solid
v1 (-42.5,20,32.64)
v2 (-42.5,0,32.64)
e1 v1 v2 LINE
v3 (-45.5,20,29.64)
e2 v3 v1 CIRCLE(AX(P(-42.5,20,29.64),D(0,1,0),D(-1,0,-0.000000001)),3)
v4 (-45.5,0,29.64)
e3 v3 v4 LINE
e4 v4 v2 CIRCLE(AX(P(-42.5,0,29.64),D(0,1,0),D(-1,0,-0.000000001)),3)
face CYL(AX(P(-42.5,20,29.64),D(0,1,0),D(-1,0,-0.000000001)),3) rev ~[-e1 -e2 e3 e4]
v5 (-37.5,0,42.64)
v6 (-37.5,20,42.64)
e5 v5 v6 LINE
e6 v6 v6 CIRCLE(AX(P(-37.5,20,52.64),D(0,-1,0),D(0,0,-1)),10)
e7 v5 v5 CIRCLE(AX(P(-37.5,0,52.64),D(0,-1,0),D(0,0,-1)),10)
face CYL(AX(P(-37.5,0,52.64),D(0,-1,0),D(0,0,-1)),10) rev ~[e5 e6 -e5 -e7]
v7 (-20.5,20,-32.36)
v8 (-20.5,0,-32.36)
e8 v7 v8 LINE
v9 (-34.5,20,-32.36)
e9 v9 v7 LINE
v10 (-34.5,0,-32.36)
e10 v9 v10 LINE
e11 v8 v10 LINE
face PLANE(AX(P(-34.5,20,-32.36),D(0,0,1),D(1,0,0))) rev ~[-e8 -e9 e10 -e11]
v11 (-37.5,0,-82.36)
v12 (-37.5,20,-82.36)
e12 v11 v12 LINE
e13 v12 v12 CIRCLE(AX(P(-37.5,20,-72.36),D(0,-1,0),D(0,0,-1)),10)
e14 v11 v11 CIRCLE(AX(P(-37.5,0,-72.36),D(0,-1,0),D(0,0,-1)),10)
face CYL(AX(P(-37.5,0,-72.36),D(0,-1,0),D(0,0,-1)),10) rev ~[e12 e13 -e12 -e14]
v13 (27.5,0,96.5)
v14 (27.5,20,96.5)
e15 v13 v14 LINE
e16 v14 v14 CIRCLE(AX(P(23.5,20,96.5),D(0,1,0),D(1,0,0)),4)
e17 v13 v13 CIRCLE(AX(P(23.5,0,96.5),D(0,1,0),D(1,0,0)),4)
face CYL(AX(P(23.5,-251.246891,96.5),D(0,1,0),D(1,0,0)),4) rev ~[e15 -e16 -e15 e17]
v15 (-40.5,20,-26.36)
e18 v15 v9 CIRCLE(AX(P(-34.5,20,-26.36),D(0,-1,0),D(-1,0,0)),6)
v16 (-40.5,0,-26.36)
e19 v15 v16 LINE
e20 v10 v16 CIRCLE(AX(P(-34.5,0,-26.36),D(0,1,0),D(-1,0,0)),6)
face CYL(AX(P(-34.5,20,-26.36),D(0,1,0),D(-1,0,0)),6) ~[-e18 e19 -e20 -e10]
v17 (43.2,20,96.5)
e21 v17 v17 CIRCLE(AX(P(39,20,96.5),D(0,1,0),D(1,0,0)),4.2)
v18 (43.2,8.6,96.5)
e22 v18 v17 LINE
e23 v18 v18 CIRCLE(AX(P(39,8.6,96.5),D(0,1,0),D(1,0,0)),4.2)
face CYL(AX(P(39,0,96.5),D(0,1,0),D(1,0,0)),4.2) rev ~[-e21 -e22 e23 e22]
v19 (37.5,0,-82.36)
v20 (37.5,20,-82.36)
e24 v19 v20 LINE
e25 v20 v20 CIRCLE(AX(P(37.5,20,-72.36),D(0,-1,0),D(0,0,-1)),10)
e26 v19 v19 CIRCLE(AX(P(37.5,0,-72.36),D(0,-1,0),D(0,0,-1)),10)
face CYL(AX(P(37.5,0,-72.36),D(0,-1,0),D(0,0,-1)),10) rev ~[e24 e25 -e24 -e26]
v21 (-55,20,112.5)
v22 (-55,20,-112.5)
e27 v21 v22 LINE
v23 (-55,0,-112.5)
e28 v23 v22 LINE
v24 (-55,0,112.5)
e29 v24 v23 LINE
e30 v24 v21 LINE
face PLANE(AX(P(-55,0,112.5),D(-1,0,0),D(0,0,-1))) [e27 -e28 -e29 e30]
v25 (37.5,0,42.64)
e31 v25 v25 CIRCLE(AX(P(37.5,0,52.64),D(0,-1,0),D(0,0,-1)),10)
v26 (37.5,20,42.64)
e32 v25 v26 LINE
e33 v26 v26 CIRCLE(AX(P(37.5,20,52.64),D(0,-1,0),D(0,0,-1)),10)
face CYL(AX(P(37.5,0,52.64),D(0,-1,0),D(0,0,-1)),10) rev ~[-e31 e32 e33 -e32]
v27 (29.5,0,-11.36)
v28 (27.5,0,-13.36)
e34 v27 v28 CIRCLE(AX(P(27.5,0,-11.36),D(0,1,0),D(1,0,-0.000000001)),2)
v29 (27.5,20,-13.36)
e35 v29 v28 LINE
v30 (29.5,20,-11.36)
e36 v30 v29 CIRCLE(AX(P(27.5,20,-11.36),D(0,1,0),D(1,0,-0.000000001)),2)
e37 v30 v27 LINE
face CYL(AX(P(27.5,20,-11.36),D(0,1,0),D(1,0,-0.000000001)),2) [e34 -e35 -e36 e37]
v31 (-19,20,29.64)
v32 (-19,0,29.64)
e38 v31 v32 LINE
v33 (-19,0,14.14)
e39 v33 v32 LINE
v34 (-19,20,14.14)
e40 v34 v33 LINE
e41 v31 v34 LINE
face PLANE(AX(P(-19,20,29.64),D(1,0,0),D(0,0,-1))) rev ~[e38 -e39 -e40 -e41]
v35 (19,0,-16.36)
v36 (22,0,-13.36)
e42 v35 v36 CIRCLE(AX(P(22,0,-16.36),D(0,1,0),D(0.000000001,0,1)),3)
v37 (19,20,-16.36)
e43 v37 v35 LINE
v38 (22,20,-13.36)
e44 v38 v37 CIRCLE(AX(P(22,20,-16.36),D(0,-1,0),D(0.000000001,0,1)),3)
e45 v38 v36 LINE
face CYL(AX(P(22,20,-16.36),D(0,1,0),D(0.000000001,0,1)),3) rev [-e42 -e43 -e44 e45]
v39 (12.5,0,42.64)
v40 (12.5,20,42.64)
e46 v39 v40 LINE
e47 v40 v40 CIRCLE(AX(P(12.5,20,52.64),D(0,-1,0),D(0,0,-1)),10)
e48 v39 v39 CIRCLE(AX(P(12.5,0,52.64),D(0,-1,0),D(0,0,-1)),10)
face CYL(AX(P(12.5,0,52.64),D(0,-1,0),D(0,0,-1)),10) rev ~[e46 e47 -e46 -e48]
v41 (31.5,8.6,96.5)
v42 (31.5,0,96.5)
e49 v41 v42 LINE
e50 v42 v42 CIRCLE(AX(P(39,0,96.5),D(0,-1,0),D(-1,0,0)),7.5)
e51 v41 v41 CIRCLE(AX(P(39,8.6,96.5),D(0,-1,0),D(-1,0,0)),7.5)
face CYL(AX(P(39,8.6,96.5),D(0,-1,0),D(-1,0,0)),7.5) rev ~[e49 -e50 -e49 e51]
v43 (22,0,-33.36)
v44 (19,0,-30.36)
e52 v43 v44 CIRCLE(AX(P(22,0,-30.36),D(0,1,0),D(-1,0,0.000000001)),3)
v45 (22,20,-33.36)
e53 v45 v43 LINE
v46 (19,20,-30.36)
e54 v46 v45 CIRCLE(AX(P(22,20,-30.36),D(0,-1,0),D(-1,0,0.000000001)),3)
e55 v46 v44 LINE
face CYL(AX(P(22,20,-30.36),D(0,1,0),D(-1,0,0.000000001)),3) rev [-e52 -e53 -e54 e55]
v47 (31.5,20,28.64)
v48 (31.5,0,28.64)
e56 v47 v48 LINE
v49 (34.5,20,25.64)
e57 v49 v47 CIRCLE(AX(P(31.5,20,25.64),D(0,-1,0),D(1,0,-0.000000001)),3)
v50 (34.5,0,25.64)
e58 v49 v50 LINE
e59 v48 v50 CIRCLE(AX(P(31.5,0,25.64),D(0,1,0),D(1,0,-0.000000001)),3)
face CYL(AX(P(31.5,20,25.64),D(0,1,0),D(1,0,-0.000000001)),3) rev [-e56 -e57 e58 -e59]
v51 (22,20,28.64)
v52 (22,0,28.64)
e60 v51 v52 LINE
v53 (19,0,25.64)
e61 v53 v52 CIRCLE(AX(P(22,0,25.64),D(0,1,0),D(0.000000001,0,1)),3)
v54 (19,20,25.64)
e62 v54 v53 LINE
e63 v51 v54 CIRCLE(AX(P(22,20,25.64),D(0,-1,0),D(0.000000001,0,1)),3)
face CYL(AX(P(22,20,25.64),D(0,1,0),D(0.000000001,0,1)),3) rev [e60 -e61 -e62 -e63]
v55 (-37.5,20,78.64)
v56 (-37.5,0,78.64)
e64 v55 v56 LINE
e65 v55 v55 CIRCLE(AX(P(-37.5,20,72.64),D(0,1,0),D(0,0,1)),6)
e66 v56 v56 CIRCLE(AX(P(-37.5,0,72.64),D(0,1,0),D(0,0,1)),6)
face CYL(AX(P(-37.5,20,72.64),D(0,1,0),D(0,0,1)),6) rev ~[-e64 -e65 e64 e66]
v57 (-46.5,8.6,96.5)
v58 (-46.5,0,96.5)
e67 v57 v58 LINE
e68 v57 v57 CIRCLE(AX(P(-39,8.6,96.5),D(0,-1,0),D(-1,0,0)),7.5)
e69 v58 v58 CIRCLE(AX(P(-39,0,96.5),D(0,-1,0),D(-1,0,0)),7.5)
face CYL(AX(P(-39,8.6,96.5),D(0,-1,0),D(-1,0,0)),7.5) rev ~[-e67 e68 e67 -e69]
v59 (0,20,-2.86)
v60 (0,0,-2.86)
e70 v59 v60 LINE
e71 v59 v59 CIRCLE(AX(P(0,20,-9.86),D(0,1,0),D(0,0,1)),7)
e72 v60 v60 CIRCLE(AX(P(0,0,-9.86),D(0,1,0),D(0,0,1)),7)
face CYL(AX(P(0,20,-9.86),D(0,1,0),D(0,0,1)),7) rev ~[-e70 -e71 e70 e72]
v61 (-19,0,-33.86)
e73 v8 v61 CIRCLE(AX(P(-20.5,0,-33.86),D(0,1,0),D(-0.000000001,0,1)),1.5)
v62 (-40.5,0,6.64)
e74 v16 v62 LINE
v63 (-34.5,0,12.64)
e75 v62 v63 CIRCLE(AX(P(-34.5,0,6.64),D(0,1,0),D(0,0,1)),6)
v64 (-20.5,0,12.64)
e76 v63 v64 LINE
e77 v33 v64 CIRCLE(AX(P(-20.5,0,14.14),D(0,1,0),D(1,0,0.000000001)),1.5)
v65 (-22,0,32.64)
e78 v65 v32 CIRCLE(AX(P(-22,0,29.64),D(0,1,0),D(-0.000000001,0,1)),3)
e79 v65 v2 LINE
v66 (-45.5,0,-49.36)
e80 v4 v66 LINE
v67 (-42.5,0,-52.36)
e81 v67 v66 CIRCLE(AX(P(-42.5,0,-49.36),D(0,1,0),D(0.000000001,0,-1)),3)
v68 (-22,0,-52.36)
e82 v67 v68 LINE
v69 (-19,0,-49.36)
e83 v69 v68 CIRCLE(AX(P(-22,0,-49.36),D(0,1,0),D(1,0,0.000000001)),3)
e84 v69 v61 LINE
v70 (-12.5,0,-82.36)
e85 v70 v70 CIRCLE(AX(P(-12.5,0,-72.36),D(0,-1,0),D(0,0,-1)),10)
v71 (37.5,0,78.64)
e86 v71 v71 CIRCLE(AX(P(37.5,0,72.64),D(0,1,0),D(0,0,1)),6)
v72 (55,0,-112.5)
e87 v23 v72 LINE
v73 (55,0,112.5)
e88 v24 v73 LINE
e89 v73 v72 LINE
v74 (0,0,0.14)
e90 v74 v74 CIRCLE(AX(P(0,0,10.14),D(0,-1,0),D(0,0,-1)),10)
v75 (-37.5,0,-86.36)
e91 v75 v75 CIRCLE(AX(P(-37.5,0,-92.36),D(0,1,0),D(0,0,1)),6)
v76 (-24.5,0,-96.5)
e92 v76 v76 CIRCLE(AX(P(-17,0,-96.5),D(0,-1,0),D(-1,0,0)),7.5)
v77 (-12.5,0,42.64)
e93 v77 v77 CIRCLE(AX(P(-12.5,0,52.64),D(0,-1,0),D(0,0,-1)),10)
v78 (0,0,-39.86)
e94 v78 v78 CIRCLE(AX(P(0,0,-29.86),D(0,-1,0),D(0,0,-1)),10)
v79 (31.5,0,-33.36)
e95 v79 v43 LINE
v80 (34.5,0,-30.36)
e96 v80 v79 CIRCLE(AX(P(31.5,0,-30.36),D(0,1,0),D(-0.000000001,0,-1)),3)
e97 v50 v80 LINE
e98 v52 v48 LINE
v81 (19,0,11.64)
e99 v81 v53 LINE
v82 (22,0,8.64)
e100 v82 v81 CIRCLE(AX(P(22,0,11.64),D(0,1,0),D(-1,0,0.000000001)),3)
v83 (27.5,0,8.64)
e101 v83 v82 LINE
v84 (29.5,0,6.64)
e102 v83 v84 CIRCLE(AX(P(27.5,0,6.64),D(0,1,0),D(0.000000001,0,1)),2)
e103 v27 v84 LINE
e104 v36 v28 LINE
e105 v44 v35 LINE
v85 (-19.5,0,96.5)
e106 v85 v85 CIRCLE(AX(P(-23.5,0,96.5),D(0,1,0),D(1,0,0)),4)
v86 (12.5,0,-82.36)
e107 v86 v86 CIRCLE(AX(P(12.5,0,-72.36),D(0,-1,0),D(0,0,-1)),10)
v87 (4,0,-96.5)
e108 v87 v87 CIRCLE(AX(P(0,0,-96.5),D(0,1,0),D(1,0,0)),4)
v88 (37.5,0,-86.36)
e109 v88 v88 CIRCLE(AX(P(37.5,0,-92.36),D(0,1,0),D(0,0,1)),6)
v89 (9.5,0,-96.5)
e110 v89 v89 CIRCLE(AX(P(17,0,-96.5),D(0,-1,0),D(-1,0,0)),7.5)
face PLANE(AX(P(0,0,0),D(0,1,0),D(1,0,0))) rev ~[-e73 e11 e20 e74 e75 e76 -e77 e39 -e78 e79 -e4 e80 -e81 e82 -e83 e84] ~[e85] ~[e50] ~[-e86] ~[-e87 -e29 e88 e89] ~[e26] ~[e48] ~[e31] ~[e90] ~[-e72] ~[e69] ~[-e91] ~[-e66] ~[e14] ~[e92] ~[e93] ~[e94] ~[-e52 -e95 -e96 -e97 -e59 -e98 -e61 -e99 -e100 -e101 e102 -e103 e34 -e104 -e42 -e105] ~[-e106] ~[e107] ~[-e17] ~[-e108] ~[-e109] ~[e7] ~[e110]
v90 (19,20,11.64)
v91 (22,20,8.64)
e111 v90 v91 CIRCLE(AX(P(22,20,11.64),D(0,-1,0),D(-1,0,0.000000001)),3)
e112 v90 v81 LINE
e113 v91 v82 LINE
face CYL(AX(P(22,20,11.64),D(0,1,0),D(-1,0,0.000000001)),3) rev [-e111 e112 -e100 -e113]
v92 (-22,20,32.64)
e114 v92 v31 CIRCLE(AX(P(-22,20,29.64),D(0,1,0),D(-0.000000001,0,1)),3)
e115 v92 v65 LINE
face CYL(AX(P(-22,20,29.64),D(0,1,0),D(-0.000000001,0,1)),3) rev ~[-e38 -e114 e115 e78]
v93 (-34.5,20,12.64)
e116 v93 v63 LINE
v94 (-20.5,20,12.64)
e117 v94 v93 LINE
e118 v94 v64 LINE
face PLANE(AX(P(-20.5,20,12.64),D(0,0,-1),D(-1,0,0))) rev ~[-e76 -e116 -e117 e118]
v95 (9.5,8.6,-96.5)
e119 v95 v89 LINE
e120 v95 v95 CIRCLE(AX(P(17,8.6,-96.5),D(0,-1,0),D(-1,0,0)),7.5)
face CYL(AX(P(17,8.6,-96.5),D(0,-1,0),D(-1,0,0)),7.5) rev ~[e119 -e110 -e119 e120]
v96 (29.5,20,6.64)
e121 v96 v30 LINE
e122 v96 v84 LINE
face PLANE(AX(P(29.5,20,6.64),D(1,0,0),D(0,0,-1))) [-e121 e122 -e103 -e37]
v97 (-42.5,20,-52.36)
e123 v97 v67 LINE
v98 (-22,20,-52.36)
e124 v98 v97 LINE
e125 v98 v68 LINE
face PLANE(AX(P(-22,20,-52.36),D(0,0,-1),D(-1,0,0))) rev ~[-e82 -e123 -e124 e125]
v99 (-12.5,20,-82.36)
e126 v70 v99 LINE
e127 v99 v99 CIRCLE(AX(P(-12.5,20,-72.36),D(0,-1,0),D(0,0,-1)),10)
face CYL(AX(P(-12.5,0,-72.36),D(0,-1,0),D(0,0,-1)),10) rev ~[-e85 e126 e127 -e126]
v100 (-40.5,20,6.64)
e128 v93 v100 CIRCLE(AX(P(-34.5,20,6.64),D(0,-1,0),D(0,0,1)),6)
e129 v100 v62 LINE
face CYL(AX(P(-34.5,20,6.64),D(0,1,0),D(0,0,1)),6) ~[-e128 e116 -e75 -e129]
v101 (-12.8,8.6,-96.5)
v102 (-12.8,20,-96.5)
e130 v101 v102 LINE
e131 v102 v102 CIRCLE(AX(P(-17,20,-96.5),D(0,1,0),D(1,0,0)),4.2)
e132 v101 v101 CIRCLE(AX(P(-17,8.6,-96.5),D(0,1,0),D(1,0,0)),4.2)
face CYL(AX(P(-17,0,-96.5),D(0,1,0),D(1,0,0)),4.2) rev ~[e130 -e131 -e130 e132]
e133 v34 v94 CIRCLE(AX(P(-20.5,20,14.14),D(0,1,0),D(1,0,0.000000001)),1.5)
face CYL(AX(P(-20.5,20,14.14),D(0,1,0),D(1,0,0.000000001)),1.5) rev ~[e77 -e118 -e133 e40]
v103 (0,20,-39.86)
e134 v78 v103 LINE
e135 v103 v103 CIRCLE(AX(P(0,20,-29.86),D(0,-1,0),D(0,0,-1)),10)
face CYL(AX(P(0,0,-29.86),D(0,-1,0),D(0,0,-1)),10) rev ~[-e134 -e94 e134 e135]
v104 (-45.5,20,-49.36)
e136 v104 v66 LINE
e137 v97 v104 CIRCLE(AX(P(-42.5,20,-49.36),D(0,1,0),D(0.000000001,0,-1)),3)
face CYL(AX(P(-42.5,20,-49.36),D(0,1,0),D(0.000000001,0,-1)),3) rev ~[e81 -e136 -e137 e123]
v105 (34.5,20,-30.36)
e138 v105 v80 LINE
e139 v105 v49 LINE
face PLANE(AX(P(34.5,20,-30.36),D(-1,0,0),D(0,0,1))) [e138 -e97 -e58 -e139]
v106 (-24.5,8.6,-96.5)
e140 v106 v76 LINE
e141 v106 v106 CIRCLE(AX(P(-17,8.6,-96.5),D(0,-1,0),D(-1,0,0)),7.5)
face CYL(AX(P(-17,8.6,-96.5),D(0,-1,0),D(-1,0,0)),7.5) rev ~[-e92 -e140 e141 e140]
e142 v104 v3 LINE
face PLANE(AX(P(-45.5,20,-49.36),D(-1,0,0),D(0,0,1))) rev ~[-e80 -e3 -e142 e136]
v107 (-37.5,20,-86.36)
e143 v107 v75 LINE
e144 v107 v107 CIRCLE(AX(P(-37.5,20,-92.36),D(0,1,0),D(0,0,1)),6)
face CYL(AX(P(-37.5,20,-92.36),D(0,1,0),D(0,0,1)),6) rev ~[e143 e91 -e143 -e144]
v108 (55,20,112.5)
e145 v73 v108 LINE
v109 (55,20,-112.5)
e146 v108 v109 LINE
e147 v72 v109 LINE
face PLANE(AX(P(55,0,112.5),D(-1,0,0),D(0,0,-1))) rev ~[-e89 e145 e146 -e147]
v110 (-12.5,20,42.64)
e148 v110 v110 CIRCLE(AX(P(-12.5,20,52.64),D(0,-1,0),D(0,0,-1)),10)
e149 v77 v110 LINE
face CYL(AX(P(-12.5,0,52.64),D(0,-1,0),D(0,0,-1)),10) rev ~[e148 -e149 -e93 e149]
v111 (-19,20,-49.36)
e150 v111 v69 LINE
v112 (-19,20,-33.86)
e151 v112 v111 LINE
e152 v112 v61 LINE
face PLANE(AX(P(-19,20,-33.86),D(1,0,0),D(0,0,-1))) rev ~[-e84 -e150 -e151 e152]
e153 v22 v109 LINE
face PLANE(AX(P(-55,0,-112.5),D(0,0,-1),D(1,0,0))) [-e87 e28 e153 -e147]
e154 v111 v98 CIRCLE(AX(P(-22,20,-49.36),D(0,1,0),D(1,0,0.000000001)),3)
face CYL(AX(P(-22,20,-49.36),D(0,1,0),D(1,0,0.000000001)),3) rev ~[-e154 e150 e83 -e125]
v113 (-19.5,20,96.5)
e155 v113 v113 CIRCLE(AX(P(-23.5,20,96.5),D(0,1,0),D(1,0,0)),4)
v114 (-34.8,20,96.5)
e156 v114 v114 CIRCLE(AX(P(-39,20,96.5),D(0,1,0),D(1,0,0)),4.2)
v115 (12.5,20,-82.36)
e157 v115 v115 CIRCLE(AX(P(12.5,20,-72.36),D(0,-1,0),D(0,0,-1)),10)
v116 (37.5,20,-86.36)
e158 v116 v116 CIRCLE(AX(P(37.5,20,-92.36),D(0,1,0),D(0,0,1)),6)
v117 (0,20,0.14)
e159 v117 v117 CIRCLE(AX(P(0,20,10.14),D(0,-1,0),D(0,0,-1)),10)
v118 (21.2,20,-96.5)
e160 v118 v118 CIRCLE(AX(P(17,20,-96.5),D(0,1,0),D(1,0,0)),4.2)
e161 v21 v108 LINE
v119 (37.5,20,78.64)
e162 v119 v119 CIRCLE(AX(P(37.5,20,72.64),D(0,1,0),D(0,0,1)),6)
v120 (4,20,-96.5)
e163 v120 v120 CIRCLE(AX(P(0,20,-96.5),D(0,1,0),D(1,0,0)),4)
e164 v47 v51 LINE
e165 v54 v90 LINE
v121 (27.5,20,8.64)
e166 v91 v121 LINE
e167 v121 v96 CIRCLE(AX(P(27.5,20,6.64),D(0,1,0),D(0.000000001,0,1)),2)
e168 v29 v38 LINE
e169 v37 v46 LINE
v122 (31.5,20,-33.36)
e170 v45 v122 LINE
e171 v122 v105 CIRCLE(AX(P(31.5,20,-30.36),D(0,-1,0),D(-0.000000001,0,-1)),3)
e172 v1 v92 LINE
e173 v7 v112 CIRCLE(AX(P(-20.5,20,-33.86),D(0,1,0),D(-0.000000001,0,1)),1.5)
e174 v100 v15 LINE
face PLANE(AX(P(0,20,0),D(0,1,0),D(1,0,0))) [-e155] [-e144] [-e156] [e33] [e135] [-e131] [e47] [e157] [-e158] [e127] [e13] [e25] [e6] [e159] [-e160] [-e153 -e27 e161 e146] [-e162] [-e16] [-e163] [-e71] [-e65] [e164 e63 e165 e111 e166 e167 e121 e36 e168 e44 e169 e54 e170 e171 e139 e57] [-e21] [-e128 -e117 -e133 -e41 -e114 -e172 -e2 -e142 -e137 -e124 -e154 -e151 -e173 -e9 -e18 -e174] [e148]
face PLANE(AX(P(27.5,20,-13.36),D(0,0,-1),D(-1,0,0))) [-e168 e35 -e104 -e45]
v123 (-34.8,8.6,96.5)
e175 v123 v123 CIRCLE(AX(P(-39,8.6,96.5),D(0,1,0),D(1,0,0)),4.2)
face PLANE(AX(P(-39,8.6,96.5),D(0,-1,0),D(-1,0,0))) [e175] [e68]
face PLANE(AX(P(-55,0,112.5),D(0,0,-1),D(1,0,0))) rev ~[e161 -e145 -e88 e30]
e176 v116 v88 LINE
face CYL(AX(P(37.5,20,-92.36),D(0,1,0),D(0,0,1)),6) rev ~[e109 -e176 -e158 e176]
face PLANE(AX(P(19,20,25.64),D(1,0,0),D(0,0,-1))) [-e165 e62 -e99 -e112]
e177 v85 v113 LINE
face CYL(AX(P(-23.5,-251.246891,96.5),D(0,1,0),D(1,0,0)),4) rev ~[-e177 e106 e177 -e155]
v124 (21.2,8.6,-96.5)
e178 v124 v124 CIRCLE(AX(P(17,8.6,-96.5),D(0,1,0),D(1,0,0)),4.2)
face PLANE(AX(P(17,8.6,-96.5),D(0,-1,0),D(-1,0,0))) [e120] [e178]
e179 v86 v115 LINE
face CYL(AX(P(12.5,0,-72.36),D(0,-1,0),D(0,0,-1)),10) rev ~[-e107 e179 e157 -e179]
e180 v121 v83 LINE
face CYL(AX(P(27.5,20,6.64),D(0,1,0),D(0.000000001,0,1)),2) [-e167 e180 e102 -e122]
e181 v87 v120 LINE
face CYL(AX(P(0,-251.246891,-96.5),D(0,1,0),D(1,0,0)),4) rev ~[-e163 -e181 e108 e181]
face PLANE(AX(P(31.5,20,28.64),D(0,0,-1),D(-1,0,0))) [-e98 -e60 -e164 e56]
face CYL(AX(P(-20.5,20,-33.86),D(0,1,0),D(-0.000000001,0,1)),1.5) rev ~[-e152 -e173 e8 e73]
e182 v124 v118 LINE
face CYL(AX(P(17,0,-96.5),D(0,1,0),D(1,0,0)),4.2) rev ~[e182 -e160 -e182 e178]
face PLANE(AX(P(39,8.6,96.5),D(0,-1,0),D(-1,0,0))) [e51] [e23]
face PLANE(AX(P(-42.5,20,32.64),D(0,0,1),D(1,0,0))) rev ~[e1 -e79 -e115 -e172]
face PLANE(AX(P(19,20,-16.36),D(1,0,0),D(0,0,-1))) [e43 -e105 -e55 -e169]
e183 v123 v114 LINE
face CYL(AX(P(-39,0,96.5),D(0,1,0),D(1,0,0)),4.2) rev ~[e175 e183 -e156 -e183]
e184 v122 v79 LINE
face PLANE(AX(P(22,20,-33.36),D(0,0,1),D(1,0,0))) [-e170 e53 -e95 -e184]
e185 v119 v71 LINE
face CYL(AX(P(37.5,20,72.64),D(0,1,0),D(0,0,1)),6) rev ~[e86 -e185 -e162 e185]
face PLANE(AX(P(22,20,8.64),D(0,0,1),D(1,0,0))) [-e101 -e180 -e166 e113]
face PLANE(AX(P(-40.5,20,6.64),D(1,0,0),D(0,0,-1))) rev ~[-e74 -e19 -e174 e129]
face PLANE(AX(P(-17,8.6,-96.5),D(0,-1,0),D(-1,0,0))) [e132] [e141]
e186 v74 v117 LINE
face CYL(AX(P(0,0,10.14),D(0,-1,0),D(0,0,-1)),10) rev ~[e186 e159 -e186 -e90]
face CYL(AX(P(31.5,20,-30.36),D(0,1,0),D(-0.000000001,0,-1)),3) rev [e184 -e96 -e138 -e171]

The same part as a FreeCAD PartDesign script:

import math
import FreeCAD as App
import Part
import Sketcher
from FreeCAD import Vector
Q = App.Units.Quantity

doc = App.newDocument("Part")
params = doc.addObject("Spreadsheet::Sheet", "Params")
for row, (alias, value) in enumerate([
    ("sketch1_width", "110 mm"),
    ("sketch1_height", "225 mm"),
    ("pad1_length", "20 mm"),
    ("sketch2_radius", "3 mm"),
    ("sketch2_radius2", "6 mm"),
    ("sketch2_radius3", "1.5 mm"),
    ("sketch2_width", "14 mm"),
    ("sketch2_height", "33 mm"),
    ("sketch3_radius", "3 mm"),
    ("sketch3_radius2", "2 mm"),
    ("sketch3_height", "14 mm"),
    ("sketch3_height2", "56 mm"),
    ("sketch3_width", "5.5 mm"),
    ("sketch4_diameter", "20 mm"),
    ("sketch5_diameter", "12 mm"),
    ("sketch6_diameter", "12 mm"),
    ("sketch7_diameter", "12 mm"),
    ("sketch8_diameter", "12 mm"),
    ("sketch9_diameter", "14 mm"),
    ("sketch10_diameter", "8.4 mm"),
    ("hole_diameter", "8.4 mm"),
    ("hole_cbore_diameter", "15 mm"),
    ("hole_cbore_depth", "8.6 mm"),
    ("sketch11_diameter", "8 mm"),
    ("hole2_diameter", "8 mm"),
], start=1):
    params.set(f"A{row}", alias)
    params.set(f"B{row}", "=" + value)
    params.setAlias(f"B{row}", alias)

body = doc.addObject("PartDesign::Body", "Body")

# Sketch on XZ plane
sketch1 = body.newObject("Sketcher::SketchObject", "Sketch")
sketch1.AttachmentSupport = (doc.getObject("XZ_Plane"), [""])
sketch1.MapMode = "FlatFace"
sketch1.addGeometry([
    Part.LineSegment(Vector(-55, -112, 0), Vector(-55, 112, 0)),
    Part.LineSegment(Vector(-55, 112, 0), Vector(55, 112, 0)),
    Part.LineSegment(Vector(55, 112, 0), Vector(55, -112, 0)),
    Part.LineSegment(Vector(55, -112, 0), Vector(-55, -112, 0)),
], False)
sketch1.addConstraint([
    Sketcher.Constraint("Coincident", 0, 2, 1, 1),
    Sketcher.Constraint("Coincident", 1, 2, 2, 1),
    Sketcher.Constraint("Coincident", 2, 2, 3, 1),
    Sketcher.Constraint("Coincident", 3, 2, 0, 1),
    Sketcher.Constraint("Vertical", 0),
    Sketcher.Constraint("Horizontal", 1),
    Sketcher.Constraint("Vertical", 2),
    Sketcher.Constraint("Horizontal", 3),
    Sketcher.Constraint("Symmetric", 0, 2, 2, 2, -1, 1),
    Sketcher.Constraint("DistanceX", 1, 1, 1, 2, Q("110 mm")),
    Sketcher.Constraint("DistanceY", 0, 1, 0, 2, Q("225 mm")),
])
sketch1.setExpression("Constraints[9]", "Params.sketch1_width")
sketch1.setExpression("Constraints[10]", "Params.sketch1_height")
pad1 = body.newObject("PartDesign::Pad", "Pad")
pad1.Profile = sketch1
pad1.setExpression("Length", "Params.pad1_length")
pad1.Reversed = True

# Sketch on XZ plane
sketch2 = body.newObject("Sketcher::SketchObject", "Sketch001")
sketch2.AttachmentSupport = (doc.getObject("XZ_Plane"), [""])
sketch2.MapMode = "FlatFace"
sketch2.AttachmentOffset = App.Placement(Vector(0, 0, -20), App.Rotation())
sketch2.addGeometry([
    Part.LineSegment(Vector(-42.5, 32.6, 0), Vector(-22, 32.6, 0)),  # 0
    Part.ArcOfCircle(Part.Circle(Vector(-22, 29.6, 0), Vector(0, 0, 1), 3), math.radians(0), math.radians(90)),  # 1
    Part.LineSegment(Vector(-19, 29.6, 0), Vector(-19, 14.1, 0)),  # 2
    Part.ArcOfCircle(Part.Circle(Vector(-20.5, 14.1, 0), Vector(0, 0, 1), 1.5), math.radians(-90), math.radians(0)),  # 3
    Part.LineSegment(Vector(-20.5, 12.6, 0), Vector(-34.5, 12.6, 0)),  # 4
    Part.ArcOfCircle(Part.Circle(Vector(-34.5, 6.6, 0), Vector(0, 0, 1), 6), math.radians(90), math.radians(180)),  # 5
    Part.LineSegment(Vector(-40.5, 6.6, 0), Vector(-40.5, -26.4, 0)),  # 6
    Part.ArcOfCircle(Part.Circle(Vector(-34.5, -26.4, 0), Vector(0, 0, 1), 6), math.radians(180), math.radians(270)),  # 7
    Part.LineSegment(Vector(-34.5, -32.4, 0), Vector(-20.5, -32.4, 0)),  # 8
    Part.ArcOfCircle(Part.Circle(Vector(-20.5, -33.9, 0), Vector(0, 0, 1), 1.5), math.radians(0), math.radians(90)),  # 9
    Part.LineSegment(Vector(-19, -33.9, 0), Vector(-19, -49.4, 0)),  # 10
    Part.ArcOfCircle(Part.Circle(Vector(-22, -49.4, 0), Vector(0, 0, 1), 3), math.radians(-90), math.radians(0)),  # 11
    Part.LineSegment(Vector(-22, -52.4, 0), Vector(-42.5, -52.4, 0)),  # 12
    Part.ArcOfCircle(Part.Circle(Vector(-42.5, -49.4, 0), Vector(0, 0, 1), 3), math.radians(180), math.radians(270)),  # 13
    Part.LineSegment(Vector(-45.5, -49.4, 0), Vector(-45.5, 29.6, 0)),  # 14
    Part.ArcOfCircle(Part.Circle(Vector(-42.5, 29.6, 0), Vector(0, 0, 1), 3), math.radians(90), math.radians(180)),  # 15
], False)
sketch2.addConstraint([
    Sketcher.Constraint("Tangent", 0, 2, 1, 2),
    Sketcher.Constraint("Tangent", 1, 1, 2, 1),
    Sketcher.Constraint("Tangent", 2, 2, 3, 2),
    Sketcher.Constraint("Tangent", 3, 1, 4, 1),
    Sketcher.Constraint("Tangent", 4, 2, 5, 1),
    Sketcher.Constraint("Tangent", 5, 2, 6, 1),
    Sketcher.Constraint("Tangent", 6, 2, 7, 1),
    Sketcher.Constraint("Tangent", 7, 2, 8, 1),
    Sketcher.Constraint("Tangent", 8, 2, 9, 2),
    Sketcher.Constraint("Tangent", 9, 1, 10, 1),
    Sketcher.Constraint("Tangent", 10, 2, 11, 2),
    Sketcher.Constraint("Tangent", 11, 1, 12, 1),
    Sketcher.Constraint("Tangent", 12, 2, 13, 2),
    Sketcher.Constraint("Tangent", 13, 1, 14, 1),
    Sketcher.Constraint("Tangent", 14, 2, 15, 2),
    Sketcher.Constraint("Tangent", 15, 1, 0, 1),
    Sketcher.Constraint("Horizontal", 0),
    Sketcher.Constraint("Vertical", 2),
    Sketcher.Constraint("Horizontal", 4),
    Sketcher.Constraint("Vertical", 6),
    Sketcher.Constraint("Horizontal", 8),
    Sketcher.Constraint("Vertical", 10),
    Sketcher.Constraint("Horizontal", 12),
    Sketcher.Constraint("Vertical", 14),
    Sketcher.Constraint("Equal", 5, 7),
    Sketcher.Constraint("Equal", 3, 9),
    Sketcher.Constraint("Equal", 1, 11),
    Sketcher.Constraint("Equal", 11, 13),
    Sketcher.Constraint("Equal", 13, 15),
    Sketcher.Constraint("Vertical", 3, 3, 9, 3),
    Sketcher.Constraint("Equal", 2, 10),
    Sketcher.Constraint("Radius", 1, Q("3 mm")),
    Sketcher.Constraint("Radius", 5, Q("6 mm")),
    Sketcher.Constraint("Radius", 3, Q("1.5 mm")),
    Sketcher.Constraint("DistanceX", 4, 2, 4, 1, Q("14 mm")),
    Sketcher.Constraint("DistanceY", 6, 2, 6, 1, Q("33 mm")),
    Sketcher.Constraint("DistanceY", 14, 1, 14, 2, Q("79 mm")),
    Sketcher.Constraint("DistanceX", 0, 1, 0, 2, Q("20.5 mm")),
    Sketcher.Constraint("DistanceX", 1, 3, -1, 1, Q("22 mm")),
    Sketcher.Constraint("DistanceY", -1, 1, 1, 3, Q("29.64 mm")),
])
sketch2.setExpression("Constraints[31]", "Params.sketch2_radius")
sketch2.setExpression("Constraints[32]", "Params.sketch2_radius2")
sketch2.setExpression("Constraints[33]", "Params.sketch2_radius3")
sketch2.setExpression("Constraints[34]", "Params.sketch2_width")
sketch2.setExpression("Constraints[35]", "Params.sketch2_height")
pocket1 = body.newObject("PartDesign::Pocket", "Pocket")
pocket1.Profile = sketch2
pocket1.Type = "UpToFirst"
pocket1.Reversed = True

# Sketch on XZ plane
sketch3 = body.newObject("Sketcher::SketchObject", "Sketch002")
sketch3.AttachmentSupport = (doc.getObject("XZ_Plane"), [""])
sketch3.MapMode = "FlatFace"
sketch3.AttachmentOffset = App.Placement(Vector(0, 0, -20), App.Rotation())
sketch3.addGeometry([
    Part.LineSegment(Vector(27.5, 8.6, 0), Vector(22, 8.6, 0)),  # 0
    Part.ArcOfCircle(Part.Circle(Vector(22, 11.6, 0), Vector(0, 0, 1), 3), math.radians(180), math.radians(270)),  # 1
    Part.LineSegment(Vector(19, 11.6, 0), Vector(19, 25.6, 0)),  # 2
    Part.ArcOfCircle(Part.Circle(Vector(22, 25.6, 0), Vector(0, 0, 1), 3), math.radians(90), math.radians(180)),  # 3
    Part.LineSegment(Vector(22, 28.6, 0), Vector(31.5, 28.6, 0)),  # 4
    Part.ArcOfCircle(Part.Circle(Vector(31.5, 25.6, 0), Vector(0, 0, 1), 3), math.radians(0), math.radians(90)),  # 5
    Part.LineSegment(Vector(34.5, 25.6, 0), Vector(34.5, -30.4, 0)),  # 6
    Part.ArcOfCircle(Part.Circle(Vector(31.5, -30.4, 0), Vector(0, 0, 1), 3), math.radians(-90), math.radians(0)),  # 7
    Part.LineSegment(Vector(31.5, -33.4, 0), Vector(22, -33.4, 0)),  # 8
    Part.ArcOfCircle(Part.Circle(Vector(22, -30.4, 0), Vector(0, 0, 1), 3), math.radians(180), math.radians(270)),  # 9
    Part.LineSegment(Vector(19, -30.4, 0), Vector(19, -16.4, 0)),  # 10
    Part.ArcOfCircle(Part.Circle(Vector(22, -16.4, 0), Vector(0, 0, 1), 3), math.radians(90), math.radians(180)),  # 11
    Part.LineSegment(Vector(22, -13.4, 0), Vector(27.5, -13.4, 0)),  # 12
    Part.ArcOfCircle(Part.Circle(Vector(27.5, -11.4, 0), Vector(0, 0, 1), 2), math.radians(-90), math.radians(0)),  # 13
    Part.LineSegment(Vector(29.5, -11.4, 0), Vector(29.5, 6.6, 0)),  # 14
    Part.ArcOfCircle(Part.Circle(Vector(27.5, 6.6, 0), Vector(0, 0, 1), 2), math.radians(0), math.radians(90)),  # 15
], False)
sketch3.addConstraint([
    Sketcher.Constraint("Tangent", 0, 2, 1, 2),
    Sketcher.Constraint("Tangent", 1, 1, 2, 1),
    Sketcher.Constraint("Tangent", 2, 2, 3, 2),
    Sketcher.Constraint("Tangent", 3, 1, 4, 1),
    Sketcher.Constraint("Tangent", 4, 2, 5, 2),
    Sketcher.Constraint("Tangent", 5, 1, 6, 1),
    Sketcher.Constraint("Tangent", 6, 2, 7, 2),
    Sketcher.Constraint("Tangent", 7, 1, 8, 1),
    Sketcher.Constraint("Tangent", 8, 2, 9, 2),
    Sketcher.Constraint("Tangent", 9, 1, 10, 1),
    Sketcher.Constraint("Tangent", 10, 2, 11, 2),
    Sketcher.Constraint("Tangent", 11, 1, 12, 1),
    Sketcher.Constraint("Tangent", 12, 2, 13, 1),
    Sketcher.Constraint("Tangent", 13, 2, 14, 1),
    Sketcher.Constraint("Tangent", 14, 2, 15, 1),
    Sketcher.Constraint("Tangent", 15, 2, 0, 1),
    Sketcher.Constraint("Horizontal", 0),
    Sketcher.Constraint("Vertical", 2),
    Sketcher.Constraint("Horizontal", 4),
    Sketcher.Constraint("Vertical", 6),
    Sketcher.Constraint("Horizontal", 8),
    Sketcher.Constraint("Vertical", 10),
    Sketcher.Constraint("Horizontal", 12),
    Sketcher.Constraint("Vertical", 14),
    Sketcher.Constraint("Equal", 1, 3),
    Sketcher.Constraint("Equal", 3, 5),
    Sketcher.Constraint("Equal", 5, 7),
    Sketcher.Constraint("Equal", 7, 9),
    Sketcher.Constraint("Equal", 9, 11),
    Sketcher.Constraint("Equal", 13, 15),
    Sketcher.Constraint("Vertical", 3, 3, 9, 3),
    Sketcher.Constraint("Equal", 2, 10),
    Sketcher.Constraint("Radius", 1, Q("3 mm")),
    Sketcher.Constraint("Radius", 13, Q("2 mm")),
    Sketcher.Constraint("DistanceY", 2, 1, 2, 2, Q("14 mm")),
    Sketcher.Constraint("DistanceY", 6, 2, 6, 1, Q("56 mm")),
    Sketcher.Constraint("DistanceX", 0, 2, 0, 1, Q("5.5 mm")),
    Sketcher.Constraint("DistanceX", 4, 1, 4, 2, Q("9.5 mm")),
    Sketcher.Constraint("DistanceX", -1, 1, 1, 3, Q("22 mm")),
    Sketcher.Constraint("DistanceY", -1, 1, 1, 3, Q("11.64 mm")),
])
sketch3.setExpression("Constraints[32]", "Params.sketch3_radius")
sketch3.setExpression("Constraints[33]", "Params.sketch3_radius2")
sketch3.setExpression("Constraints[34]", "Params.sketch3_height")
sketch3.setExpression("Constraints[35]", "Params.sketch3_height2")
sketch3.setExpression("Constraints[36]", "Params.sketch3_width")
pocket2 = body.newObject("PartDesign::Pocket", "Pocket001")
pocket2.Profile = sketch3
pocket2.Type = "UpToFirst"
pocket2.Reversed = True

# Sketch on XZ plane
sketch4 = body.newObject("Sketcher::SketchObject", "Sketch003")
sketch4.AttachmentSupport = (doc.getObject("XZ_Plane"), [""])
sketch4.MapMode = "FlatFace"
sketch4.addGeometry([
    Part.Circle(Vector(38, 53, 0), Vector(0, 0, 1), 10),  # 0
    Part.Circle(Vector(12, 53, 0), Vector(0, 0, 1), 10),  # 1
    Part.Circle(Vector(-12, 53, 0), Vector(0, 0, 1), 10),  # 2
    Part.Circle(Vector(-38, 53, 0), Vector(0, 0, 1), 10),  # 3
    Part.Circle(Vector(0, 10, 0), Vector(0, 0, 1), 10),  # 4
    Part.Circle(Vector(0, -30, 0), Vector(0, 0, 1), 10),  # 5
    Part.Circle(Vector(38, -72, 0), Vector(0, 0, 1), 10),  # 6
    Part.Circle(Vector(12, -72, 0), Vector(0, 0, 1), 10),  # 7
    Part.Circle(Vector(-12, -72, 0), Vector(0, 0, 1), 10),  # 8
    Part.Circle(Vector(-38, -72, 0), Vector(0, 0, 1), 10),  # 9
], False)
sketch4.addConstraint([
    Sketcher.Constraint("Equal", 0, 1),
    Sketcher.Constraint("Equal", 1, 2),
    Sketcher.Constraint("Equal", 2, 3),
    Sketcher.Constraint("Equal", 3, 4),
    Sketcher.Constraint("Equal", 4, 5),
    Sketcher.Constraint("Equal", 5, 6),
    Sketcher.Constraint("Equal", 6, 7),
    Sketcher.Constraint("Equal", 7, 8),
    Sketcher.Constraint("Equal", 8, 9),
    Sketcher.Constraint("Symmetric", 1, 3, 2, 3, -2),
    Sketcher.Constraint("Symmetric", 0, 3, 3, 3, -2),
    Sketcher.Constraint("Symmetric", 7, 3, 8, 3, -2),
    Sketcher.Constraint("Symmetric", 6, 3, 9, 3, -2),
    Sketcher.Constraint("PointOnObject", 4, 3, -2),
    Sketcher.Constraint("PointOnObject", 5, 3, -2),
    Sketcher.Constraint("Horizontal", 0, 3, 1, 3),
    Sketcher.Constraint("Horizontal", 6, 3, 7, 3),
    Sketcher.Constraint("Vertical", 0, 3, 6, 3),
    Sketcher.Constraint("Vertical", 1, 3, 7, 3),
    Sketcher.Constraint("Diameter", 0, Q("20 mm")),
    Sketcher.Constraint("DistanceX", 1, 3, 0, 3, Q("25 mm")),
    Sketcher.Constraint("DistanceX", 2, 3, 1, 3, Q("25 mm")),
    Sketcher.Constraint("DistanceY", 5, 3, 4, 3, Q("40 mm")),
    Sketcher.Constraint("DistanceY", 6, 3, 0, 3, Q("125 mm")),
    Sketcher.Constraint("DistanceY", 4, 3, 1, 3, Q("42.5 mm")),
    Sketcher.Constraint("DistanceY", -1, 1, 0, 3, Q("52.64 mm")),
])
sketch4.setExpression("Constraints[19]", "Params.sketch4_diameter")
pocket3 = body.newObject("PartDesign::Pocket", "Pocket002")
pocket3.Profile = sketch4
pocket3.Type = "ThroughAll"

# Sketch on XZ plane
sketch5 = body.newObject("Sketcher::SketchObject", "Sketch004")
sketch5.AttachmentSupport = (doc.getObject("XZ_Plane"), [""])
sketch5.MapMode = "FlatFace"
sketch5.AttachmentOffset = App.Placement(Vector(0, 0, -20), App.Rotation())
sketch5.addGeometry(Part.Circle(Vector(-38, -92, 0), Vector(0, 0, 1), 6), False)
sketch5.addConstraint([
    Sketcher.Constraint("Diameter", 0, Q("12 mm")),
    Sketcher.Constraint("DistanceX", 0, 3, -1, 1, Q("37.5 mm")),
    Sketcher.Constraint("DistanceY", 0, 3, -1, 1, Q("92.36 mm")),
])
sketch5.setExpression("Constraints[0]", "Params.sketch5_diameter")
pocket4 = body.newObject("PartDesign::Pocket", "Pocket003")
pocket4.Profile = sketch5
pocket4.Type = "UpToFirst"
pocket4.Reversed = True

# Sketch on XZ plane
sketch6 = body.newObject("Sketcher::SketchObject", "Sketch005")
sketch6.AttachmentSupport = (doc.getObject("XZ_Plane"), [""])
sketch6.MapMode = "FlatFace"
sketch6.AttachmentOffset = App.Placement(Vector(0, 0, -20), App.Rotation())
sketch6.addGeometry(Part.Circle(Vector(38, -92, 0), Vector(0, 0, 1), 6), False)
sketch6.addConstraint([
    Sketcher.Constraint("Diameter", 0, Q("12 mm")),
    Sketcher.Constraint("DistanceX", -1, 1, 0, 3, Q("37.5 mm")),
    Sketcher.Constraint("DistanceY", 0, 3, -1, 1, Q("92.36 mm")),
])
sketch6.setExpression("Constraints[0]", "Params.sketch6_diameter")
pocket5 = body.newObject("PartDesign::Pocket", "Pocket004")
pocket5.Profile = sketch6
pocket5.Type = "UpToFirst"
pocket5.Reversed = True

# Sketch on XZ plane
sketch7 = body.newObject("Sketcher::SketchObject", "Sketch006")
sketch7.AttachmentSupport = (doc.getObject("XZ_Plane"), [""])
sketch7.MapMode = "FlatFace"
sketch7.AttachmentOffset = App.Placement(Vector(0, 0, -20), App.Rotation())
sketch7.addGeometry(Part.Circle(Vector(-38, 73, 0), Vector(0, 0, 1), 6), False)
sketch7.addConstraint([
    Sketcher.Constraint("Diameter", 0, Q("12 mm")),
    Sketcher.Constraint("DistanceX", 0, 3, -1, 1, Q("37.5 mm")),
    Sketcher.Constraint("DistanceY", -1, 1, 0, 3, Q("72.64 mm")),
])
sketch7.setExpression("Constraints[0]", "Params.sketch7_diameter")
pocket6 = body.newObject("PartDesign::Pocket", "Pocket005")
pocket6.Profile = sketch7
pocket6.Type = "UpToFirst"
pocket6.Reversed = True

# Sketch on XZ plane
sketch8 = body.newObject("Sketcher::SketchObject", "Sketch007")
sketch8.AttachmentSupport = (doc.getObject("XZ_Plane"), [""])
sketch8.MapMode = "FlatFace"
sketch8.AttachmentOffset = App.Placement(Vector(0, 0, -20), App.Rotation())
sketch8.addGeometry(Part.Circle(Vector(38, 73, 0), Vector(0, 0, 1), 6), False)
sketch8.addConstraint([
    Sketcher.Constraint("Diameter", 0, Q("12 mm")),
    Sketcher.Constraint("DistanceX", -1, 1, 0, 3, Q("37.5 mm")),
    Sketcher.Constraint("DistanceY", -1, 1, 0, 3, Q("72.64 mm")),
])
sketch8.setExpression("Constraints[0]", "Params.sketch8_diameter")
pocket7 = body.newObject("PartDesign::Pocket", "Pocket006")
pocket7.Profile = sketch8
pocket7.Type = "UpToFirst"
pocket7.Reversed = True

# Sketch on XZ plane
sketch9 = body.newObject("Sketcher::SketchObject", "Sketch008")
sketch9.AttachmentSupport = (doc.getObject("XZ_Plane"), [""])
sketch9.MapMode = "FlatFace"
sketch9.AttachmentOffset = App.Placement(Vector(0, 0, -20), App.Rotation())
sketch9.addGeometry(Part.Circle(Vector(0, -10, 0), Vector(0, 0, 1), 7), False)
sketch9.addConstraint([
    Sketcher.Constraint("PointOnObject", 0, 3, -2),
    Sketcher.Constraint("Diameter", 0, Q("14 mm")),
    Sketcher.Constraint("DistanceY", 0, 3, -1, 1, Q("9.86 mm")),
])
sketch9.setExpression("Constraints[1]", "Params.sketch9_diameter")
pocket8 = body.newObject("PartDesign::Pocket", "Pocket007")
pocket8.Profile = sketch9
pocket8.Type = "UpToFirst"
pocket8.Reversed = True

# Sketch on XZ plane
sketch10 = body.newObject("Sketcher::SketchObject", "Sketch009")
sketch10.AttachmentSupport = (doc.getObject("XZ_Plane"), [""])
sketch10.MapMode = "FlatFace"
sketch10.addGeometry([
    Part.Circle(Vector(17, -96.5, 0), Vector(0, 0, 1), 4.2),
    Part.Circle(Vector(-17, -96.5, 0), Vector(0, 0, 1), 4.2),
    Part.Circle(Vector(39, 96.5, 0), Vector(0, 0, 1), 4.2),
    Part.Circle(Vector(-39, 96.5, 0), Vector(0, 0, 1), 4.2),
], False)
sketch10.addConstraint([
    Sketcher.Constraint("Equal", 0, 1),
    Sketcher.Constraint("Equal", 1, 2),
    Sketcher.Constraint("Equal", 2, 3),
    Sketcher.Constraint("Symmetric", 0, 3, 1, 3, -2),
    Sketcher.Constraint("Symmetric", 2, 3, 3, 3, -2),
    Sketcher.Constraint("Diameter", 0, Q("8.4 mm")),
    Sketcher.Constraint("DistanceX", -1, 1, 0, 3, Q("17 mm")),
    Sketcher.Constraint("DistanceX", -1, 1, 2, 3, Q("39 mm")),
    Sketcher.Constraint("DistanceY", 0, 3, 2, 3, Q("193 mm")),
    Sketcher.Constraint("DistanceY", 0, 3, -1, 1, Q("96.5 mm")),
])
sketch10.setExpression("Constraints[5]", "Params.sketch10_diameter")
doc.recompute()
hole = body.newObject("PartDesign::Hole", "Hole")
hole.Profile = sketch10
hole.ThreadType = "None"
hole.setExpression("Diameter", "Params.hole_diameter")
hole.DepthType = "ThroughAll"
hole.HoleCutType = "Counterbore"
hole.setExpression("HoleCutDiameter", "Params.hole_cbore_diameter")
hole.setExpression("HoleCutDepth", "Params.hole_cbore_depth")

# Sketch on XZ plane
sketch11 = body.newObject("Sketcher::SketchObject", "Sketch010")
sketch11.AttachmentSupport = (doc.getObject("XZ_Plane"), [""])
sketch11.MapMode = "FlatFace"
sketch11.addGeometry([
    Part.Circle(Vector(0, -96.5, 0), Vector(0, 0, 1), 4),
    Part.Circle(Vector(23.5, 96.5, 0), Vector(0, 0, 1), 4),
    Part.Circle(Vector(-23.5, 96.5, 0), Vector(0, 0, 1), 4),
], False)
sketch11.addConstraint([
    Sketcher.Constraint("Equal", 0, 1),
    Sketcher.Constraint("Equal", 1, 2),
    Sketcher.Constraint("Symmetric", 1, 3, 2, 3, -2),
    Sketcher.Constraint("PointOnObject", 0, 3, -2),
    Sketcher.Constraint("Diameter", 0, Q("8 mm")),
    Sketcher.Constraint("DistanceY", 0, 3, 1, 3, Q("193 mm")),
    Sketcher.Constraint("DistanceX", 2, 3, 1, 3, Q("47 mm")),
    Sketcher.Constraint("DistanceY", 0, 3, -1, 1, Q("96.5 mm")),
])
sketch11.setExpression("Constraints[4]", "Params.sketch11_diameter")
doc.recompute()
hole2 = body.newObject("PartDesign::Hole", "Hole001")
hole2.Profile = sketch11
hole2.ThreadType = "None"
hole2.setExpression("Diameter", "Params.hole2_diameter")
hole2.DepthType = "ThroughAll"

doc.recompute()
